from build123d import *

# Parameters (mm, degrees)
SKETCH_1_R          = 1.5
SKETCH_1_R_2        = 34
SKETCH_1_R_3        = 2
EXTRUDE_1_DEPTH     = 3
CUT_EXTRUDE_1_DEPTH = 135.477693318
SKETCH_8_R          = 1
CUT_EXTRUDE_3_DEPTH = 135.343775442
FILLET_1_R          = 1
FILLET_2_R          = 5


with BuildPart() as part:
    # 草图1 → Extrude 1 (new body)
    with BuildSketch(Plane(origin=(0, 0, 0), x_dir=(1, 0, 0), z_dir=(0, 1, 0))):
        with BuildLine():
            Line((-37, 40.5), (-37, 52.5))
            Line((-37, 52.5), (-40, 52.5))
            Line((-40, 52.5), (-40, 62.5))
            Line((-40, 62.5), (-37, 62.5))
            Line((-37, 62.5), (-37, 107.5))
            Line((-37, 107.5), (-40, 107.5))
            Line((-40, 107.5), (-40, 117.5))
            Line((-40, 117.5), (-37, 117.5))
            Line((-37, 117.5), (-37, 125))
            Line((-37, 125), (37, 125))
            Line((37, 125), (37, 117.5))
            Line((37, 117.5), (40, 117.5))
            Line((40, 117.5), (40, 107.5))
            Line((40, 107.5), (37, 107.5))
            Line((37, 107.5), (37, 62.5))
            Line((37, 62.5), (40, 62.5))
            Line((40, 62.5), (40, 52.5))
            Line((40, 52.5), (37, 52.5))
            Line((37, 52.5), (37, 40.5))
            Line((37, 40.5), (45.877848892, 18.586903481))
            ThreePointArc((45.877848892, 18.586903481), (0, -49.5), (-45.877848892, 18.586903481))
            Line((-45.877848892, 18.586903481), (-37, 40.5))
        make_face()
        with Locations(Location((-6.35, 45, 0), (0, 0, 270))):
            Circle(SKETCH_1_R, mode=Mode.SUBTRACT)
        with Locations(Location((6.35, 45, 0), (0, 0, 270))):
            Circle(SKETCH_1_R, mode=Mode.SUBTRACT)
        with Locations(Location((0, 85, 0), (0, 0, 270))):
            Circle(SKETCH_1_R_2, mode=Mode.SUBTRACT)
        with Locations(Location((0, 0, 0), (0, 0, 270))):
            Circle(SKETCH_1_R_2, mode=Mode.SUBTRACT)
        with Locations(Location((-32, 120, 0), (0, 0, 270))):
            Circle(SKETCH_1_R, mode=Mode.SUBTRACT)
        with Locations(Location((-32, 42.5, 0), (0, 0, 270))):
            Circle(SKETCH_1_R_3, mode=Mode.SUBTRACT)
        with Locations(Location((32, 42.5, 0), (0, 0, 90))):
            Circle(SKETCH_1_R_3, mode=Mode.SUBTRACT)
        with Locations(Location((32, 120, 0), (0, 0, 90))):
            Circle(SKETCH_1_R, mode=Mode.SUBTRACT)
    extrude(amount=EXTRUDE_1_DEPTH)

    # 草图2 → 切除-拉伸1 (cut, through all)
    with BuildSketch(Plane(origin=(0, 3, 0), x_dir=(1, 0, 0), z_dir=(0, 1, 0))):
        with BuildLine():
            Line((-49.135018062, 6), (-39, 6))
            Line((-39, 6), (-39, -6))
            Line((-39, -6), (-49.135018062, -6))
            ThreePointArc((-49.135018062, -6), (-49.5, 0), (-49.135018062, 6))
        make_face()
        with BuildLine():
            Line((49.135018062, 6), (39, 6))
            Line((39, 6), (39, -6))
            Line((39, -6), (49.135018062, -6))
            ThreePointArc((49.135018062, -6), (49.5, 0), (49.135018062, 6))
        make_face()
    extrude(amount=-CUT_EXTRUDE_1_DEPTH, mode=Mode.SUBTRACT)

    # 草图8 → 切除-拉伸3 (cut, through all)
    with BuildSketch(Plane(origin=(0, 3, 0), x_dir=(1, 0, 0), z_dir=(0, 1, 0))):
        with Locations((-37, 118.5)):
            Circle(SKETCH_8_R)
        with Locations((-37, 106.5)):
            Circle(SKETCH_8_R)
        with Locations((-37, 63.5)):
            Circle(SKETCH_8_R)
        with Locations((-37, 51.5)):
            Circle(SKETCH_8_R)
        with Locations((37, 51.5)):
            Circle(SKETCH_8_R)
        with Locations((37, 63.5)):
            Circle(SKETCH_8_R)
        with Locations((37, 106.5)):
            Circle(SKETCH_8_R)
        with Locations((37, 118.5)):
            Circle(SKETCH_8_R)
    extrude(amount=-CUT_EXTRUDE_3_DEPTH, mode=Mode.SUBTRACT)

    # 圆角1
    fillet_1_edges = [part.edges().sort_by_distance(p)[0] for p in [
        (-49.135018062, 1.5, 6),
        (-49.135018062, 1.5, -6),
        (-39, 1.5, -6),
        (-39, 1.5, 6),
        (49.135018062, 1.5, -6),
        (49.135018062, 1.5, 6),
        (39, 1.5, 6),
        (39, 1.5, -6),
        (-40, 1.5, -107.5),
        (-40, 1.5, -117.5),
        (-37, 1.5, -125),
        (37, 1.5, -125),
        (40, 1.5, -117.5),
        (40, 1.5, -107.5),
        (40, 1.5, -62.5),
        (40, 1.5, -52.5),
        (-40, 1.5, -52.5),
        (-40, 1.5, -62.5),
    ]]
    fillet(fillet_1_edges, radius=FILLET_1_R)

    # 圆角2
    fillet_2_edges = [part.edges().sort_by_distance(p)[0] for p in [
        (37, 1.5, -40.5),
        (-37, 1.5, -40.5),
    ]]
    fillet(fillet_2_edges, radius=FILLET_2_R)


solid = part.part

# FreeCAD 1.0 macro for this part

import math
import FreeCAD as App
import Part
import Sketcher
from FreeCAD import Vector
Q = App.Units.Quantity


def edges_at(feature, points):
    """Names of the edges that pass closest to the given points."""
    edges = feature.Shape.Edges
    near = lambda p: min(range(len(edges)), key=lambda i: edges[i].distToShape(Part.Vertex(*p))[0])
    return sorted({f"Edge{near(p) + 1}" for p in points})

doc = App.newDocument("Part")
body = doc.addObject("PartDesign::Body", "Body")

# Sketch on XZ plane
sketch1 = body.newObject("Sketcher::SketchObject", "Sketch")
sketch1.AttachmentSupport = (doc.getObject("XZ_Plane"), [""])
sketch1.MapMode = "FlatFace"
sketch1.addGeometry(Part.LineSegment(Vector(-37, -52.5, 0), Vector(-37, -40.5, 0)), False)
sketch1.addGeometry(Part.LineSegment(Vector(-37, -40.5, 0), Vector(-45.877849, -18.586903, 0)), False)
sketch1.addGeometry(Part.ArcOfCircle(Part.Circle(Vector(0, 0, 0), Vector(0, 0, 1), 49.5), math.radians(-22.054786), math.radians(202.054786)), False)
sketch1.addGeometry(Part.LineSegment(Vector(45.877849, -18.586903, 0), Vector(37, -40.5, 0)), False)
sketch1.addGeometry(Part.LineSegment(Vector(37, -40.5, 0), Vector(37, -52.5, 0)), False)
sketch1.addGeometry(Part.LineSegment(Vector(37, -52.5, 0), Vector(40, -52.5, 0)), False)
sketch1.addGeometry(Part.LineSegment(Vector(40, -52.5, 0), Vector(40, -62.5, 0)), False)
sketch1.addGeometry(Part.LineSegment(Vector(40, -62.5, 0), Vector(37, -62.5, 0)), False)
sketch1.addGeometry(Part.LineSegment(Vector(37, -62.5, 0), Vector(37, -107.5, 0)), False)
sketch1.addGeometry(Part.LineSegment(Vector(37, -107.5, 0), Vector(40, -107.5, 0)), False)
sketch1.addGeometry(Part.LineSegment(Vector(40, -107.5, 0), Vector(40, -117.5, 0)), False)
sketch1.addGeometry(Part.LineSegment(Vector(40, -117.5, 0), Vector(37, -117.5, 0)), False)
sketch1.addGeometry(Part.LineSegment(Vector(37, -117.5, 0), Vector(37, -125, 0)), False)
sketch1.addGeometry(Part.LineSegment(Vector(37, -125, 0), Vector(-37, -125, 0)), False)
sketch1.addGeometry(Part.LineSegment(Vector(-37, -125, 0), Vector(-37, -117.5, 0)), False)
sketch1.addGeometry(Part.LineSegment(Vector(-37, -117.5, 0), Vector(-40, -117.5, 0)), False)
sketch1.addGeometry(Part.LineSegment(Vector(-40, -117.5, 0), Vector(-40, -107.5, 0)), False)
sketch1.addGeometry(Part.LineSegment(Vector(-40, -107.5, 0), Vector(-37, -107.5, 0)), False)
sketch1.addGeometry(Part.LineSegment(Vector(-37, -107.5, 0), Vector(-37, -62.5, 0)), False)
sketch1.addGeometry(Part.LineSegment(Vector(-37, -62.5, 0), Vector(-40, -62.5, 0)), False)
sketch1.addGeometry(Part.LineSegment(Vector(-40, -62.5, 0), Vector(-40, -52.5, 0)), False)
sketch1.addGeometry(Part.LineSegment(Vector(-40, -52.5, 0), Vector(-37, -52.5, 0)), False)
sketch1.addGeometry(Part.Circle(Vector(32, -42.5, 0), Vector(0, 0, 1), 2), False)
sketch1.addGeometry(Part.Circle(Vector(0, 0, 0), Vector(0, 0, 1), 34), False)
sketch1.addGeometry(Part.Circle(Vector(-32, -42.5, 0), Vector(0, 0, 1), 2), False)
sketch1.addGeometry(Part.Circle(Vector(6.35, -45, 0), Vector(0, 0, 1), 1.5), False)
sketch1.addGeometry(Part.Circle(Vector(32, -120, 0), Vector(0, 0, 1), 1.5), False)
sketch1.addGeometry(Part.Circle(Vector(-6.35, -45, 0), Vector(0, 0, 1), 1.5), False)
sketch1.addGeometry(Part.Circle(Vector(0, -85, 0), Vector(0, 0, 1), 34), False)
sketch1.addGeometry(Part.Circle(Vector(-32, -120, 0), Vector(0, 0, 1), 1.5), False)
sketch1.addConstraint(Sketcher.Constraint("Coincident", 0, 2, 1, 1))
sketch1.addConstraint(Sketcher.Constraint("Tangent", 1, 2, 2, 2))
sketch1.addConstraint(Sketcher.Constraint("Tangent", 2, 1, 3, 1))
sketch1.addConstraint(Sketcher.Constraint("Coincident", 3, 2, 4, 1))
sketch1.addConstraint(Sketcher.Constraint("Coincident", 4, 2, 5, 1))
sketch1.addConstraint(Sketcher.Constraint("Coincident", 5, 2, 6, 1))
sketch1.addConstraint(Sketcher.Constraint("Coincident", 6, 2, 7, 1))
sketch1.addConstraint(Sketcher.Constraint("Coincident", 7, 2, 8, 1))
sketch1.addConstraint(Sketcher.Constraint("Coincident", 8, 2, 9, 1))
sketch1.addConstraint(Sketcher.Constraint("Coincident", 9, 2, 10, 1))
sketch1.addConstraint(Sketcher.Constraint("Coincident", 10, 2, 11, 1))
sketch1.addConstraint(Sketcher.Constraint("Coincident", 11, 2, 12, 1))
sketch1.addConstraint(Sketcher.Constraint("Coincident", 12, 2, 13, 1))
sketch1.addConstraint(Sketcher.Constraint("Coincident", 13, 2, 14, 1))
sketch1.addConstraint(Sketcher.Constraint("Coincident", 14, 2, 15, 1))
sketch1.addConstraint(Sketcher.Constraint("Coincident", 15, 2, 16, 1))
sketch1.addConstraint(Sketcher.Constraint("Coincident", 16, 2, 17, 1))
sketch1.addConstraint(Sketcher.Constraint("Coincident", 17, 2, 18, 1))
sketch1.addConstraint(Sketcher.Constraint("Coincident", 18, 2, 19, 1))
sketch1.addConstraint(Sketcher.Constraint("Coincident", 19, 2, 20, 1))
sketch1.addConstraint(Sketcher.Constraint("Coincident", 20, 2, 21, 1))
sketch1.addConstraint(Sketcher.Constraint("Coincident", 21, 2, 0, 1))
sketch1.addConstraint(Sketcher.Constraint("Vertical", 0))
sketch1.addConstraint(Sketcher.Constraint("Vertical", 4))
sketch1.addConstraint(Sketcher.Constraint("Horizontal", 5))
sketch1.addConstraint(Sketcher.Constraint("Vertical", 6))
sketch1.addConstraint(Sketcher.Constraint("Horizontal", 7))
sketch1.addConstraint(Sketcher.Constraint("Vertical", 8))
sketch1.addConstraint(Sketcher.Constraint("Horizontal", 9))
sketch1.addConstraint(Sketcher.Constraint("Vertical", 10))
sketch1.addConstraint(Sketcher.Constraint("Horizontal", 11))
sketch1.addConstraint(Sketcher.Constraint("Vertical", 12))
sketch1.addConstraint(Sketcher.Constraint("Horizontal", 13))
sketch1.addConstraint(Sketcher.Constraint("Vertical", 14))
sketch1.addConstraint(Sketcher.Constraint("Horizontal", 15))
sketch1.addConstraint(Sketcher.Constraint("Vertical", 16))
sketch1.addConstraint(Sketcher.Constraint("Horizontal", 17))
sketch1.addConstraint(Sketcher.Constraint("Vertical", 18))
sketch1.addConstraint(Sketcher.Constraint("Horizontal", 19))
sketch1.addConstraint(Sketcher.Constraint("Vertical", 20))
sketch1.addConstraint(Sketcher.Constraint("Horizontal", 21))
sketch1.addConstraint(Sketcher.Constraint("Coincident", 2, 3, -1, 1))
sketch1.addConstraint(Sketcher.Constraint("Coincident", 23, 3, -1, 1))
sketch1.addConstraint(Sketcher.Constraint("Equal", 22, 24))
sketch1.addConstraint(Sketcher.Constraint("Equal", 25, 26))
sketch1.addConstraint(Sketcher.Constraint("Equal", 26, 27))
sketch1.addConstraint(Sketcher.Constraint("Equal", 23, 28))
sketch1.addConstraint(Sketcher.Constraint("Equal", 27, 29))
sketch1.addConstraint(Sketcher.Constraint("Symmetric", 22, 3, 24, 3, -2))
sketch1.addConstraint(Sketcher.Constraint("Symmetric", 25, 3, 27, 3, -2))
sketch1.addConstraint(Sketcher.Constraint("Symmetric", 26, 3, 29, 3, -2))
sketch1.addConstraint(Sketcher.Constraint("Symmetric", 0, 2, 3, 2, -2))
sketch1.addConstraint(Sketcher.Constraint("Symmetric", 11, 2, 14, 2, -2))
sketch1.addConstraint(Sketcher.Constraint("Symmetric", 9, 2, 16, 2, -2))
sketch1.addConstraint(Sketcher.Constraint("Symmetric", 7, 2, 18, 2, -2))
sketch1.addConstraint(Sketcher.Constraint("Symmetric", 5, 2, 20, 2, -2))
sketch1.addConstraint(Sketcher.Constraint("PointOnObject", 28, 3, -2))
sketch1.addConstraint(Sketcher.Constraint("Vertical", 22, 3, 26, 3))
sketch1.addConstraint(Sketcher.Constraint("Vertical", 4, 2, 7, 2))
sketch1.addConstraint(Sketcher.Constraint("Vertical", 6, 2, 9, 2))
sketch1.addConstraint(Sketcher.Constraint("Vertical", 8, 2, 11, 2))
sketch1.addConstraint(Sketcher.Constraint("Equal", 6, 10))
sketch1.addConstraint(Sketcher.Constraint("Diameter", 22, Q("4 mm")))
sketch1.addConstraint(Sketcher.Constraint("Diameter", 23, Q("68 mm")))
sketch1.addConstraint(Sketcher.Constraint("Diameter", 25, Q("3 mm")))
sketch1.addConstraint(Sketcher.Constraint("Radius", 2, Q("49.5 mm")))
sketch1.addConstraint(Sketcher.Constraint("DistanceX", 5, 1, 5, 2, Q("3 mm")))
sketch1.addConstraint(Sketcher.Constraint("DistanceX", 13, 2, 13, 1, Q("74 mm")))
sketch1.addConstraint(Sketcher.Constraint("DistanceY", 0, 1, 0, 2, Q("12 mm")))
sketch1.addConstraint(Sketcher.Constraint("DistanceY", 6, 2, 6, 1, Q("10 mm")))
sketch1.addConstraint(Sketcher.Constraint("DistanceY", 8, 2, 8, 1, Q("45 mm")))
sketch1.addConstraint(Sketcher.Constraint("DistanceY", 12, 2, 12, 1, Q("7.5 mm")))
sketch1.addConstraint(Sketcher.Constraint("DistanceX", -1, 1, 22, 3, Q("32 mm")))
sketch1.addConstraint(Sketcher.Constraint("DistanceY", 25, 3, -1, 1, Q("45 mm")))
sketch1.addConstraint(Sketcher.Constraint("DistanceY", 26, 3, -1, 1, Q("120 mm")))
sketch1.addConstraint(Sketcher.Constraint("DistanceY", 28, 3, -1, 1, Q("85 mm")))
sketch1.addConstraint(Sketcher.Constraint("DistanceY", 12, 2, -1, 1, Q("125 mm")))
sketch1.addConstraint(Sketcher.Constraint("DistanceY", 24, 3, 0, 2, Q("2 mm")))
sketch1.addConstraint(Sketcher.Constraint("DistanceX", 27, 3, 25, 3, Q("12.7 mm")))
pad1 = body.newObject("PartDesign::Pad", "Pad")
pad1.Profile = sketch1
pad1.Length = 3
pad1.Reversed = True

# Sketch on XZ plane
sketch2 = body.newObject("Sketcher::SketchObject", "Sketch001")
sketch2.AttachmentSupport = (doc.getObject("XZ_Plane"), [""])
sketch2.MapMode = "FlatFace"
sketch2.AttachmentOffset = App.Placement(Vector(0, 0, -3), App.Rotation())
sketch2.addGeometry(Part.LineSegment(Vector(-39, -6, 0), Vector(-49.135018, -6, 0)), False)
sketch2.addGeometry(Part.ArcOfCircle(Part.Circle(Vector(0, 0, 0), Vector(0, 0, 1), 49.5), math.radians(173.037937), math.radians(186.962063)), False)
sketch2.addGeometry(Part.LineSegment(Vector(-49.135018, 6, 0), Vector(-39, 6, 0)), False)
sketch2.addGeometry(Part.LineSegment(Vector(-39, 6, 0), Vector(-39, -6, 0)), False)
sketch2.addGeometry(Part.LineSegment(Vector(49.135018, -6, 0), Vector(39, -6, 0)), False)
sketch2.addGeometry(Part.LineSegment(Vector(39, -6, 0), Vector(39, 6, 0)), False)
sketch2.addGeometry(Part.LineSegment(Vector(39, 6, 0), Vector(49.135018, 6, 0)), False)
sketch2.addGeometry(Part.ArcOfCircle(Part.Circle(Vector(0, 0, 0), Vector(0, 0, 1), 49.5), math.radians(-6.962063), math.radians(6.962063)), False)
sketch2.addConstraint(Sketcher.Constraint("Coincident", 0, 2, 1, 2))
sketch2.addConstraint(Sketcher.Constraint("Coincident", 1, 1, 2, 1))
sketch2.addConstraint(Sketcher.Constraint("Coincident", 2, 2, 3, 1))
sketch2.addConstraint(Sketcher.Constraint("Coincident", 3, 2, 0, 1))
sketch2.addConstraint(Sketcher.Constraint("Coincident", 4, 2, 5, 1))
sketch2.addConstraint(Sketcher.Constraint("Coincident", 5, 2, 6, 1))
sketch2.addConstraint(Sketcher.Constraint("Coincident", 6, 2, 7, 2))
sketch2.addConstraint(Sketcher.Constraint("Coincident", 7, 1, 4, 1))
sketch2.addConstraint(Sketcher.Constraint("Horizontal", 0))
sketch2.addConstraint(Sketcher.Constraint("Horizontal", 2))
sketch2.addConstraint(Sketcher.Constraint("Vertical", 3))
sketch2.addConstraint(Sketcher.Constraint("Horizontal", 4))
sketch2.addConstraint(Sketcher.Constraint("Vertical", 5))
sketch2.addConstraint(Sketcher.Constraint("Horizontal", 6))
sketch2.addConstraint(Sketcher.Constraint("Coincident", 1, 3, -1, 1))
sketch2.addConstraint(Sketcher.Constraint("Coincident", 7, 3, -1, 1))
sketch2.addConstraint(Sketcher.Constraint("Equal", 1, 7))
sketch2.addConstraint(Sketcher.Constraint("Symmetric", 2, 2, 4, 2, -1, 1))
sketch2.addConstraint(Sketcher.Constraint("Horizontal", 3, 2, 4, 2))
sketch2.addConstraint(Sketcher.Constraint("Horizontal", 2, 2, 5, 2))
sketch2.addConstraint(Sketcher.Constraint("Radius", 1, Q("49.5 mm")))
sketch2.addConstraint(Sketcher.Constraint("DistanceY", 3, 2, 3, 1, Q("12 mm")))
sketch2.addConstraint(Sketcher.Constraint("DistanceX", 2, 2, -1, 1, Q("39 mm")))
pocket1 = body.newObject("PartDesign::Pocket", "Pocket")
pocket1.Profile = sketch2
pocket1.Type = "ThroughAll"
pocket1.Reversed = True

# Sketch on XZ plane
sketch3 = body.newObject("Sketcher::SketchObject", "Sketch002")
sketch3.AttachmentSupport = (doc.getObject("XZ_Plane"), [""])
sketch3.MapMode = "FlatFace"
sketch3.AttachmentOffset = App.Placement(Vector(0, 0, -3), App.Rotation())
sketch3.addGeometry(Part.Circle(Vector(-37, -118.5, 0), Vector(0, 0, 1), 1), False)
sketch3.addGeometry(Part.Circle(Vector(-37, -106.5, 0), Vector(0, 0, 1), 1), False)
sketch3.addGeometry(Part.Circle(Vector(-37, -63.5, 0), Vector(0, 0, 1), 1), False)
sketch3.addGeometry(Part.Circle(Vector(-37, -51.5, 0), Vector(0, 0, 1), 1), False)
sketch3.addGeometry(Part.Circle(Vector(37, -51.5, 0), Vector(0, 0, 1), 1), False)
sketch3.addGeometry(Part.Circle(Vector(37, -63.5, 0), Vector(0, 0, 1), 1), False)
sketch3.addGeometry(Part.Circle(Vector(37, -106.5, 0), Vector(0, 0, 1), 1), False)
sketch3.addGeometry(Part.Circle(Vector(37, -118.5, 0), Vector(0, 0, 1), 1), False)
sketch3.addConstraint(Sketcher.Constraint("Equal", 0, 1))
sketch3.addConstraint(Sketcher.Constraint("Equal", 1, 2))
sketch3.addConstraint(Sketcher.Constraint("Equal", 2, 3))
sketch3.addConstraint(Sketcher.Constraint("Equal", 3, 4))
sketch3.addConstraint(Sketcher.Constraint("Equal", 4, 5))
sketch3.addConstraint(Sketcher.Constraint("Equal", 5, 6))
sketch3.addConstraint(Sketcher.Constraint("Equal", 6, 7))
sketch3.addConstraint(Sketcher.Constraint("Symmetric", 3, 3, 4, 3, -2))
sketch3.addConstraint(Sketcher.Constraint("Symmetric", 2, 3, 5, 3, -2))
sketch3.addConstraint(Sketcher.Constraint("Symmetric", 1, 3, 6, 3, -2))
sketch3.addConstraint(Sketcher.Constraint("Symmetric", 0, 3, 7, 3, -2))
sketch3.addConstraint(Sketcher.Constraint("Vertical", 0, 3, 1, 3))
sketch3.addConstraint(Sketcher.Constraint("Vertical", 1, 3, 2, 3))
sketch3.addConstraint(Sketcher.Constraint("Vertical", 2, 3, 3, 3))
sketch3.addConstraint(Sketcher.Constraint("Diameter", 0, Q("2 mm")))
sketch3.addConstraint(Sketcher.Constraint("DistanceX", 0, 3, -1, 1, Q("37 mm")))
sketch3.addConstraint(Sketcher.Constraint("DistanceY", 0, 3, 1, 3, Q("12 mm")))
sketch3.addConstraint(Sketcher.Constraint("DistanceY", 1, 3, 2, 3, Q("43 mm")))
sketch3.addConstraint(Sketcher.Constraint("DistanceY", 2, 3, 3, 3, Q("12 mm")))
sketch3.addConstraint(Sketcher.Constraint("DistanceY", 0, 3, -1, 1, Q("118.5 mm")))
pocket2 = body.newObject("PartDesign::Pocket", "Pocket001")
pocket2.Profile = sketch3
pocket2.Type = "ThroughAll"
pocket2.Reversed = True
doc.recompute()

fillet = body.newObject("PartDesign::Fillet", "Fillet")
fillet.Base = (pocket2, edges_at(pocket2, [
    (-49.135, 1.5, 6),
    (-49.135, 1.5, -6),
    (-39, 1.5, -6),
    (-39, 1.5, 6),
    (49.135, 1.5, -6),
    (49.135, 1.5, 6),
    (39, 1.5, 6),
    (39, 1.5, -6),
    (-40, 1.5, -107.5),
    (-40, 1.5, -117.5),
    (-37, 1.5, -125),
    (37, 1.5, -125),
    (40, 1.5, -117.5),
    (40, 1.5, -107.5),
    (40, 1.5, -62.5),
    (40, 1.5, -52.5),
    (-40, 1.5, -52.5),
    (-40, 1.5, -62.5),
]))
fillet.Radius = 1
doc.recompute()

fillet2 = body.newObject("PartDesign::Fillet", "Fillet001")
fillet2.Base = (fillet, edges_at(fillet, [(37, 1.5, -40.5), (-37, 1.5, -40.5)]))
fillet2.Radius = 5

doc.recompute()
